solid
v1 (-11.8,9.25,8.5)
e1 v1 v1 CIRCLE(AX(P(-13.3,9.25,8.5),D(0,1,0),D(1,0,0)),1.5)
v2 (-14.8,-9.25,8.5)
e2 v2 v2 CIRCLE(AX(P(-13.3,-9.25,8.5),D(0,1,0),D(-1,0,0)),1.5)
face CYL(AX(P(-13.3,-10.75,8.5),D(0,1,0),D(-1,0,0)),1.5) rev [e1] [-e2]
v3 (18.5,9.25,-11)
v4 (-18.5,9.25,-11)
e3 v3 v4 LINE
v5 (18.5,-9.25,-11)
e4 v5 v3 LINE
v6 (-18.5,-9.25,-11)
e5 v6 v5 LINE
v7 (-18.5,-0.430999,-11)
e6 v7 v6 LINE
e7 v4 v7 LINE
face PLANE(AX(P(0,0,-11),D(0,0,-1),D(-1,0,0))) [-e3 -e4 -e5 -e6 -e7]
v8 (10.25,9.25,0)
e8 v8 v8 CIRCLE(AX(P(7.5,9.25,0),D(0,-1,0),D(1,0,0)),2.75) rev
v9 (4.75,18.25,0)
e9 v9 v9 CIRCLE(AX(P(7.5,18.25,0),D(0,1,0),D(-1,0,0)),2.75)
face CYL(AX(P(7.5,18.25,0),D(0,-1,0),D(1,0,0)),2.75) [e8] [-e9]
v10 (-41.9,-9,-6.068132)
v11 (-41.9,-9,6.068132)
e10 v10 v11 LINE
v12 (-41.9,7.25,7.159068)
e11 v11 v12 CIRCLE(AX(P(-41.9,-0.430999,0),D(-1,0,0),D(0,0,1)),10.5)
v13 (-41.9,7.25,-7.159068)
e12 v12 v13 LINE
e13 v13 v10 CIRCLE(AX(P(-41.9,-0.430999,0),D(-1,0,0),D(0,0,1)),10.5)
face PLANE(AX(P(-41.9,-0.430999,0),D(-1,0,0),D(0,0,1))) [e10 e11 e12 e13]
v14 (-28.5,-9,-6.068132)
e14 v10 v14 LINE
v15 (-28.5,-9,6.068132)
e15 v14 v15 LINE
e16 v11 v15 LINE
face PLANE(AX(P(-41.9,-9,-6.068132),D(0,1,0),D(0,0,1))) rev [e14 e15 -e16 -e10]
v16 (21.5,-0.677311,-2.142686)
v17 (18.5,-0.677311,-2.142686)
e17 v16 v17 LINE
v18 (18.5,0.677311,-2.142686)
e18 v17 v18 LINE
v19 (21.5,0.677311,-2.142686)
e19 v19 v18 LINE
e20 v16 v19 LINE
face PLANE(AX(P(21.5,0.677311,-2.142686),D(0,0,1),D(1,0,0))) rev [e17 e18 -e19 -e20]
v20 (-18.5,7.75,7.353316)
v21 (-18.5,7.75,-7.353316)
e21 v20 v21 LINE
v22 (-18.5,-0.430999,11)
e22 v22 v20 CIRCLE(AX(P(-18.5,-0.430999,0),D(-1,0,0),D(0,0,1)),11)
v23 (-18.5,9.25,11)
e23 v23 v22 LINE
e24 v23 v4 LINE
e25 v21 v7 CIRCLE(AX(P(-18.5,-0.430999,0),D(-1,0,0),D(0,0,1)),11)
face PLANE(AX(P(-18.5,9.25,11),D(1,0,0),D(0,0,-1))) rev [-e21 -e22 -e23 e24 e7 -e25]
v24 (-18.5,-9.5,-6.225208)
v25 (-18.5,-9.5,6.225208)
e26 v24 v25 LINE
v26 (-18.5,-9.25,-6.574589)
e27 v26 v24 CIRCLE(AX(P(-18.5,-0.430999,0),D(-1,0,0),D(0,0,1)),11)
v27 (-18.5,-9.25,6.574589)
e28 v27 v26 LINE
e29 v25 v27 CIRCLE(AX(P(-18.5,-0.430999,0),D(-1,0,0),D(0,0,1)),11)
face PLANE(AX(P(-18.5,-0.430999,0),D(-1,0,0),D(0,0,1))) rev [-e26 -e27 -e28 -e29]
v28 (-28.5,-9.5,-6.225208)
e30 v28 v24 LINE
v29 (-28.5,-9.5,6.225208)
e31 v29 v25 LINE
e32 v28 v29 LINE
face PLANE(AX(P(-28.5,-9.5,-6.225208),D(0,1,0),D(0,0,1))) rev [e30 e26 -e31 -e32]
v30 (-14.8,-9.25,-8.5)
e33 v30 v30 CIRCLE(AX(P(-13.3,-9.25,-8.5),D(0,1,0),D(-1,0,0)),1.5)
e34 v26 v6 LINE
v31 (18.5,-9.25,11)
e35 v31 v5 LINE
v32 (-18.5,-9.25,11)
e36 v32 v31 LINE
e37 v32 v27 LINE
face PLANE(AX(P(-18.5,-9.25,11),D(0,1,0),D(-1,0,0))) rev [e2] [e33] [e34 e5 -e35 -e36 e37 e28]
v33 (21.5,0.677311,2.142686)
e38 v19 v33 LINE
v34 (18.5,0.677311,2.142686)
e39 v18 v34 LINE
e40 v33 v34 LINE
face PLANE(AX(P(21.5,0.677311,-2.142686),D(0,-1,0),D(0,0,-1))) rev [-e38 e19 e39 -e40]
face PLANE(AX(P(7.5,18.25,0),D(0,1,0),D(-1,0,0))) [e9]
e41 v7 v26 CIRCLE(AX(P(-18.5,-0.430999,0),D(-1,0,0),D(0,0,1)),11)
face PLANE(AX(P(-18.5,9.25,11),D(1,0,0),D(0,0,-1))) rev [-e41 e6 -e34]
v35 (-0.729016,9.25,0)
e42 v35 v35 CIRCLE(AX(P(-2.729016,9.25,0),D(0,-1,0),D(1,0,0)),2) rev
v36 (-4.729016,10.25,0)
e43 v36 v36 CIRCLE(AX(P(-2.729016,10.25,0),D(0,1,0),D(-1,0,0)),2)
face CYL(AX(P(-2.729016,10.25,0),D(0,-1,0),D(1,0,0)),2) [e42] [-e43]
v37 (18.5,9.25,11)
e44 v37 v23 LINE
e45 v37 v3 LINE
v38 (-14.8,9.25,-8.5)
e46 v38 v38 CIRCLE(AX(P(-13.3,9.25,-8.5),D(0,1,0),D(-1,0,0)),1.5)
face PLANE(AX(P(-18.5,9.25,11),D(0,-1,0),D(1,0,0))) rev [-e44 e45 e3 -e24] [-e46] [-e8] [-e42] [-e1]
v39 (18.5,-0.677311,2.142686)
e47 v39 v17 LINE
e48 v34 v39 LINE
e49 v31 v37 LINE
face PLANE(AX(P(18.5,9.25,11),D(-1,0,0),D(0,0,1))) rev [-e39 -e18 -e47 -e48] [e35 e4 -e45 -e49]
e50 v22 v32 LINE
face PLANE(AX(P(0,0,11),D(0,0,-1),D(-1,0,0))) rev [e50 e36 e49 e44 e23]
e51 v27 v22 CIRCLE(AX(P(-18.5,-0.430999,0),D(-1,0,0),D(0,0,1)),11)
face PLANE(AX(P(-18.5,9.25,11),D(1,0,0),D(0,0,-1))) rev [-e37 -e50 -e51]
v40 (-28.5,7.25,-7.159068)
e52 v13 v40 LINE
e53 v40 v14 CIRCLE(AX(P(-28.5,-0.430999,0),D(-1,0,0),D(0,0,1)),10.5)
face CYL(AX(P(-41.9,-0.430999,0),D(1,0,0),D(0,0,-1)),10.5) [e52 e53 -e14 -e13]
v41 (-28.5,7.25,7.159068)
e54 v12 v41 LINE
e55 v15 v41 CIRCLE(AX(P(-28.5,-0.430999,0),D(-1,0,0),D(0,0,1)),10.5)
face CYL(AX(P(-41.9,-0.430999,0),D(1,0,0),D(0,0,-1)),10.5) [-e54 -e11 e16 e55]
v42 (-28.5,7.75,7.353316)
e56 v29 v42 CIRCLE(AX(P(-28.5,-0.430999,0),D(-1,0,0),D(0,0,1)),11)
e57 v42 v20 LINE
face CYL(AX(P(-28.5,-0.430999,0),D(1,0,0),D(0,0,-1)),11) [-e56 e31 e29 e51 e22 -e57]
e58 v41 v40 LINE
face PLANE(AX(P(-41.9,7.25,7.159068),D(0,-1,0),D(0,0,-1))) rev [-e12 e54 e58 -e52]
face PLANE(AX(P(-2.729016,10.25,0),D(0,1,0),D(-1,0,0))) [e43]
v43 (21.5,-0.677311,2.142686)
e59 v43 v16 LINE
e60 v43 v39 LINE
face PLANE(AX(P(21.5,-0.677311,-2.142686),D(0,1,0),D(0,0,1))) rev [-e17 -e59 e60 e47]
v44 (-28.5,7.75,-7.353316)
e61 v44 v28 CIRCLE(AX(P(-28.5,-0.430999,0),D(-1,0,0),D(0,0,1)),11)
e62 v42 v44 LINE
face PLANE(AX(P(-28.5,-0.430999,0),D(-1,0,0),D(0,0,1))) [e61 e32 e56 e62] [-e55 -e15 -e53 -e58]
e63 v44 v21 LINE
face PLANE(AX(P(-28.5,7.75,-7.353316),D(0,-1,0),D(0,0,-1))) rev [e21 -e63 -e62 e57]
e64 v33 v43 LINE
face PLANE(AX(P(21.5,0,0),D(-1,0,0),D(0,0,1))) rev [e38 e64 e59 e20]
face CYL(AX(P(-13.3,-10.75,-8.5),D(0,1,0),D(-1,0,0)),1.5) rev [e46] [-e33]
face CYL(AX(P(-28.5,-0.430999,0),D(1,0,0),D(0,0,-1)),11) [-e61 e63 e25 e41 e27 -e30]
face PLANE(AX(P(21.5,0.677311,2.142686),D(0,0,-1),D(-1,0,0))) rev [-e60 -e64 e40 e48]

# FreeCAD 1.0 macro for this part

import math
import FreeCAD as App
import Part
import Sketcher
from FreeCAD import Vector


def add_polygon(sketch, points):
    """Adds a closed chain of lines whose ends are joined by coincident constraints."""
    first, n = sketch.GeometryCount, len(points)
    for a, b in zip(points, points[1:] + points[:1]):
        sketch.addGeometry(Part.LineSegment(App.Vector(*a, 0), App.Vector(*b, 0)), False)
    for i in range(n):
        sketch.addConstraint(Sketcher.Constraint("Coincident", first + i, 2, first + (i + 1) % n, 1))

doc = App.newDocument("Part")
body = doc.addObject("PartDesign::Body", "Body")

# Sketch on XY plane
sketch1 = body.newObject("Sketcher::SketchObject", "Sketch")
sketch1.AttachmentSupport = (doc.getObject("XY_Plane"), [""])
sketch1.MapMode = "FlatFace"
add_polygon(sketch1, [(-18, 9), (-18, -9), (18, -9), (18, 9)])  # lines 0-3
sketch1.addConstraint([
    Sketcher.Constraint("Vertical", 0),
    Sketcher.Constraint("Horizontal", 1),
    Sketcher.Constraint("Vertical", 2),
    Sketcher.Constraint("Horizontal", 3),
    Sketcher.Constraint("Symmetric", 0, 2, 2, 2, -1, 1),
    Sketcher.Constraint("DistanceX", 1, 1, 1, 2, 37.0),
    Sketcher.Constraint("DistanceY", 0, 2, 0, 1, 18.5),
])
pad1 = body.newObject("PartDesign::Pad", "Pad")
pad1.Profile = sketch1
pad1.Length = 22
pad1.Midplane = True

# Sketch on YZ plane
sketch2 = body.newObject("Sketcher::SketchObject", "Sketch001")
sketch2.AttachmentSupport = (doc.getObject("YZ_Plane"), [""])
sketch2.MapMode = "FlatFace"
sketch2.AttachmentOffset = App.Placement(Vector(0, 0, -18.5), App.Rotation())
sketch2.addGeometry([
    Part.LineSegment(Vector(-10, -6, 0), Vector(-10, 6, 0)),
    Part.ArcOfCircle(Part.Circle(Vector(0, 0, 0), Vector(0, 0, 1), 11), math.radians(42), math.radians(146)),
    Part.LineSegment(Vector(8, 7, 0), Vector(8, -7, 0)),
    Part.ArcOfCircle(Part.Circle(Vector(0, 0, 0), Vector(0, 0, 1), 11), math.radians(-146), math.radians(-42)),
], False)
sketch2.addConstraint([
    Sketcher.Constraint("Coincident", 0, 2, 1, 2),
    Sketcher.Constraint("Coincident", 1, 1, 2, 1),
    Sketcher.Constraint("Coincident", 2, 2, 3, 2),
    Sketcher.Constraint("Coincident", 3, 1, 0, 1),
    Sketcher.Constraint("Vertical", 0),
    Sketcher.Constraint("Vertical", 2),
    Sketcher.Constraint("Coincident", 3, 3, 1, 3),
    Sketcher.Constraint("Equal", 1, 3),
    Sketcher.Constraint("PointOnObject", 1, 3, -1),
    Sketcher.Constraint("Radius", 1, 11.0),
    Sketcher.Constraint("DistanceX", 0, 2, -1, 1, 9.5),
    Sketcher.Constraint("DistanceX", -1, 1, 1, 1, 7.75),
    Sketcher.Constraint("DistanceX", 1, 3, -1, 1, 0.430999),
])
pad2 = body.newObject("PartDesign::Pad", "Pad001")
pad2.Profile = sketch2
pad2.Length = 10
pad2.Reversed = True

# Sketch on YZ plane
sketch3 = body.newObject("Sketcher::SketchObject", "Sketch002")
sketch3.AttachmentSupport = (doc.getObject("YZ_Plane"), [""])
sketch3.MapMode = "FlatFace"
sketch3.AttachmentOffset = App.Placement(Vector(0, 0, -28.5), App.Rotation())
sketch3.addGeometry([
    Part.LineSegment(Vector(-9, -6, 0), Vector(-9, 6, 0)),
    Part.ArcOfCircle(Part.Circle(Vector(0, 0, 0), Vector(0, 0, 1), 11), math.radians(43), math.radians(145)),
    Part.LineSegment(Vector(7, 7, 0), Vector(7, -7, 0)),
    Part.ArcOfCircle(Part.Circle(Vector(0, 0, 0), Vector(0, 0, 1), 11), math.radians(-145), math.radians(-43)),
], False)
sketch3.addConstraint([
    Sketcher.Constraint("Coincident", 0, 2, 1, 2),
    Sketcher.Constraint("Coincident", 1, 1, 2, 1),
    Sketcher.Constraint("Coincident", 2, 2, 3, 2),
    Sketcher.Constraint("Coincident", 3, 1, 0, 1),
    Sketcher.Constraint("Vertical", 0),
    Sketcher.Constraint("Vertical", 2),
    Sketcher.Constraint("Coincident", 3, 3, 1, 3),
    Sketcher.Constraint("Equal", 1, 3),
    Sketcher.Constraint("PointOnObject", 1, 3, -1),
    Sketcher.Constraint("Radius", 1, 10.5),
    Sketcher.Constraint("DistanceX", 0, 2, -1, 1, 9.0),
    Sketcher.Constraint("DistanceX", -1, 1, 1, 1, 7.25),
    Sketcher.Constraint("DistanceX", 1, 3, -1, 1, 0.430999),
])
pad3 = body.newObject("PartDesign::Pad", "Pad002")
pad3.Profile = sketch3
pad3.Length = 13.4
pad3.Reversed = True

# Sketch on YZ plane
sketch4 = body.newObject("Sketcher::SketchObject", "Sketch003")
sketch4.AttachmentSupport = (doc.getObject("YZ_Plane"), [""])
sketch4.MapMode = "FlatFace"
sketch4.AttachmentOffset = App.Placement(Vector(0, 0, 18.5), App.Rotation())
add_polygon(sketch4, [(0.7, 2.1), (-0.7, 2.1), (-0.7, -2.1), (0.7, -2.1)])  # lines 0-3
sketch4.addConstraint([
    Sketcher.Constraint("Horizontal", 0),
    Sketcher.Constraint("Vertical", 1),
    Sketcher.Constraint("Horizontal", 2),
    Sketcher.Constraint("Vertical", 3),
    Sketcher.Constraint("Symmetric", 0, 2, 2, 2, -1, 1),
    Sketcher.Constraint("DistanceX", 0, 2, 0, 1, 1.354622),
    Sketcher.Constraint("DistanceY", 1, 2, 1, 1, 4.285372),
])
pad4 = body.newObject("PartDesign::Pad", "Pad003")
pad4.Profile = sketch4
pad4.Length = 3

# Sketch on XZ plane
sketch5 = body.newObject("Sketcher::SketchObject", "Sketch004")
sketch5.AttachmentSupport = (doc.getObject("XZ_Plane"), [""])
sketch5.MapMode = "FlatFace"
sketch5.AttachmentOffset = App.Placement(Vector(0, 0, -9.25), App.Rotation())
sketch5.addGeometry(Part.Circle(Vector(-2.7, 0, 0), Vector(0, 0, 1), 2), False)
sketch5.addConstraint([
    Sketcher.Constraint("PointOnObject", 0, 3, -1),
    Sketcher.Constraint("Diameter", 0, 4.0),
    Sketcher.Constraint("DistanceX", 0, 3, -1, 1, 2.729016),
])
pad5 = body.newObject("PartDesign::Pad", "Pad004")
pad5.Profile = sketch5
pad5.Length = 1
pad5.Reversed = True

# Sketch on XZ plane
sketch6 = body.newObject("Sketcher::SketchObject", "Sketch005")
sketch6.AttachmentSupport = (doc.getObject("XZ_Plane"), [""])
sketch6.MapMode = "FlatFace"
sketch6.AttachmentOffset = App.Placement(Vector(0, 0, -9.25), App.Rotation())
sketch6.addGeometry([
    Part.Circle(Vector(-13.3, -8.5, 0), Vector(0, 0, 1), 1.5),
    Part.Circle(Vector(-13.3, 8.5, 0), Vector(0, 0, 1), 1.5),
], False)
sketch6.addConstraint([
    Sketcher.Constraint("Equal", 0, 1),
    Sketcher.Constraint("Symmetric", 0, 3, 1, 3, -1),
    Sketcher.Constraint("Diameter", 0, 3.0),
    Sketcher.Constraint("DistanceY", 0, 3, 1, 3, 17.0),
    Sketcher.Constraint("DistanceX", 0, 3, -1, 1, 13.3),
])
pocket1 = body.newObject("PartDesign::Pocket", "Pocket")
pocket1.Profile = sketch6
pocket1.Length = 20
pocket1.Reversed = True

# Sketch on XZ plane
sketch7 = body.newObject("Sketcher::SketchObject", "Sketch006")
sketch7.AttachmentSupport = (doc.getObject("XZ_Plane"), [""])
sketch7.MapMode = "FlatFace"
sketch7.AttachmentOffset = App.Placement(Vector(0, 0, -9.25), App.Rotation())
sketch7.addGeometry(Part.Circle(Vector(7.5, 0, 0), Vector(0, 0, 1), 2.8), False)
sketch7.addConstraint([
    Sketcher.Constraint("PointOnObject", 0, 3, -1),
    Sketcher.Constraint("Diameter", 0, 5.5),
    Sketcher.Constraint("DistanceX", -1, 1, 0, 3, 7.5),
])
pad6 = body.newObject("PartDesign::Pad", "Pad005")
pad6.Profile = sketch7
pad6.Length = 9
pad6.Reversed = True

doc.recompute()
